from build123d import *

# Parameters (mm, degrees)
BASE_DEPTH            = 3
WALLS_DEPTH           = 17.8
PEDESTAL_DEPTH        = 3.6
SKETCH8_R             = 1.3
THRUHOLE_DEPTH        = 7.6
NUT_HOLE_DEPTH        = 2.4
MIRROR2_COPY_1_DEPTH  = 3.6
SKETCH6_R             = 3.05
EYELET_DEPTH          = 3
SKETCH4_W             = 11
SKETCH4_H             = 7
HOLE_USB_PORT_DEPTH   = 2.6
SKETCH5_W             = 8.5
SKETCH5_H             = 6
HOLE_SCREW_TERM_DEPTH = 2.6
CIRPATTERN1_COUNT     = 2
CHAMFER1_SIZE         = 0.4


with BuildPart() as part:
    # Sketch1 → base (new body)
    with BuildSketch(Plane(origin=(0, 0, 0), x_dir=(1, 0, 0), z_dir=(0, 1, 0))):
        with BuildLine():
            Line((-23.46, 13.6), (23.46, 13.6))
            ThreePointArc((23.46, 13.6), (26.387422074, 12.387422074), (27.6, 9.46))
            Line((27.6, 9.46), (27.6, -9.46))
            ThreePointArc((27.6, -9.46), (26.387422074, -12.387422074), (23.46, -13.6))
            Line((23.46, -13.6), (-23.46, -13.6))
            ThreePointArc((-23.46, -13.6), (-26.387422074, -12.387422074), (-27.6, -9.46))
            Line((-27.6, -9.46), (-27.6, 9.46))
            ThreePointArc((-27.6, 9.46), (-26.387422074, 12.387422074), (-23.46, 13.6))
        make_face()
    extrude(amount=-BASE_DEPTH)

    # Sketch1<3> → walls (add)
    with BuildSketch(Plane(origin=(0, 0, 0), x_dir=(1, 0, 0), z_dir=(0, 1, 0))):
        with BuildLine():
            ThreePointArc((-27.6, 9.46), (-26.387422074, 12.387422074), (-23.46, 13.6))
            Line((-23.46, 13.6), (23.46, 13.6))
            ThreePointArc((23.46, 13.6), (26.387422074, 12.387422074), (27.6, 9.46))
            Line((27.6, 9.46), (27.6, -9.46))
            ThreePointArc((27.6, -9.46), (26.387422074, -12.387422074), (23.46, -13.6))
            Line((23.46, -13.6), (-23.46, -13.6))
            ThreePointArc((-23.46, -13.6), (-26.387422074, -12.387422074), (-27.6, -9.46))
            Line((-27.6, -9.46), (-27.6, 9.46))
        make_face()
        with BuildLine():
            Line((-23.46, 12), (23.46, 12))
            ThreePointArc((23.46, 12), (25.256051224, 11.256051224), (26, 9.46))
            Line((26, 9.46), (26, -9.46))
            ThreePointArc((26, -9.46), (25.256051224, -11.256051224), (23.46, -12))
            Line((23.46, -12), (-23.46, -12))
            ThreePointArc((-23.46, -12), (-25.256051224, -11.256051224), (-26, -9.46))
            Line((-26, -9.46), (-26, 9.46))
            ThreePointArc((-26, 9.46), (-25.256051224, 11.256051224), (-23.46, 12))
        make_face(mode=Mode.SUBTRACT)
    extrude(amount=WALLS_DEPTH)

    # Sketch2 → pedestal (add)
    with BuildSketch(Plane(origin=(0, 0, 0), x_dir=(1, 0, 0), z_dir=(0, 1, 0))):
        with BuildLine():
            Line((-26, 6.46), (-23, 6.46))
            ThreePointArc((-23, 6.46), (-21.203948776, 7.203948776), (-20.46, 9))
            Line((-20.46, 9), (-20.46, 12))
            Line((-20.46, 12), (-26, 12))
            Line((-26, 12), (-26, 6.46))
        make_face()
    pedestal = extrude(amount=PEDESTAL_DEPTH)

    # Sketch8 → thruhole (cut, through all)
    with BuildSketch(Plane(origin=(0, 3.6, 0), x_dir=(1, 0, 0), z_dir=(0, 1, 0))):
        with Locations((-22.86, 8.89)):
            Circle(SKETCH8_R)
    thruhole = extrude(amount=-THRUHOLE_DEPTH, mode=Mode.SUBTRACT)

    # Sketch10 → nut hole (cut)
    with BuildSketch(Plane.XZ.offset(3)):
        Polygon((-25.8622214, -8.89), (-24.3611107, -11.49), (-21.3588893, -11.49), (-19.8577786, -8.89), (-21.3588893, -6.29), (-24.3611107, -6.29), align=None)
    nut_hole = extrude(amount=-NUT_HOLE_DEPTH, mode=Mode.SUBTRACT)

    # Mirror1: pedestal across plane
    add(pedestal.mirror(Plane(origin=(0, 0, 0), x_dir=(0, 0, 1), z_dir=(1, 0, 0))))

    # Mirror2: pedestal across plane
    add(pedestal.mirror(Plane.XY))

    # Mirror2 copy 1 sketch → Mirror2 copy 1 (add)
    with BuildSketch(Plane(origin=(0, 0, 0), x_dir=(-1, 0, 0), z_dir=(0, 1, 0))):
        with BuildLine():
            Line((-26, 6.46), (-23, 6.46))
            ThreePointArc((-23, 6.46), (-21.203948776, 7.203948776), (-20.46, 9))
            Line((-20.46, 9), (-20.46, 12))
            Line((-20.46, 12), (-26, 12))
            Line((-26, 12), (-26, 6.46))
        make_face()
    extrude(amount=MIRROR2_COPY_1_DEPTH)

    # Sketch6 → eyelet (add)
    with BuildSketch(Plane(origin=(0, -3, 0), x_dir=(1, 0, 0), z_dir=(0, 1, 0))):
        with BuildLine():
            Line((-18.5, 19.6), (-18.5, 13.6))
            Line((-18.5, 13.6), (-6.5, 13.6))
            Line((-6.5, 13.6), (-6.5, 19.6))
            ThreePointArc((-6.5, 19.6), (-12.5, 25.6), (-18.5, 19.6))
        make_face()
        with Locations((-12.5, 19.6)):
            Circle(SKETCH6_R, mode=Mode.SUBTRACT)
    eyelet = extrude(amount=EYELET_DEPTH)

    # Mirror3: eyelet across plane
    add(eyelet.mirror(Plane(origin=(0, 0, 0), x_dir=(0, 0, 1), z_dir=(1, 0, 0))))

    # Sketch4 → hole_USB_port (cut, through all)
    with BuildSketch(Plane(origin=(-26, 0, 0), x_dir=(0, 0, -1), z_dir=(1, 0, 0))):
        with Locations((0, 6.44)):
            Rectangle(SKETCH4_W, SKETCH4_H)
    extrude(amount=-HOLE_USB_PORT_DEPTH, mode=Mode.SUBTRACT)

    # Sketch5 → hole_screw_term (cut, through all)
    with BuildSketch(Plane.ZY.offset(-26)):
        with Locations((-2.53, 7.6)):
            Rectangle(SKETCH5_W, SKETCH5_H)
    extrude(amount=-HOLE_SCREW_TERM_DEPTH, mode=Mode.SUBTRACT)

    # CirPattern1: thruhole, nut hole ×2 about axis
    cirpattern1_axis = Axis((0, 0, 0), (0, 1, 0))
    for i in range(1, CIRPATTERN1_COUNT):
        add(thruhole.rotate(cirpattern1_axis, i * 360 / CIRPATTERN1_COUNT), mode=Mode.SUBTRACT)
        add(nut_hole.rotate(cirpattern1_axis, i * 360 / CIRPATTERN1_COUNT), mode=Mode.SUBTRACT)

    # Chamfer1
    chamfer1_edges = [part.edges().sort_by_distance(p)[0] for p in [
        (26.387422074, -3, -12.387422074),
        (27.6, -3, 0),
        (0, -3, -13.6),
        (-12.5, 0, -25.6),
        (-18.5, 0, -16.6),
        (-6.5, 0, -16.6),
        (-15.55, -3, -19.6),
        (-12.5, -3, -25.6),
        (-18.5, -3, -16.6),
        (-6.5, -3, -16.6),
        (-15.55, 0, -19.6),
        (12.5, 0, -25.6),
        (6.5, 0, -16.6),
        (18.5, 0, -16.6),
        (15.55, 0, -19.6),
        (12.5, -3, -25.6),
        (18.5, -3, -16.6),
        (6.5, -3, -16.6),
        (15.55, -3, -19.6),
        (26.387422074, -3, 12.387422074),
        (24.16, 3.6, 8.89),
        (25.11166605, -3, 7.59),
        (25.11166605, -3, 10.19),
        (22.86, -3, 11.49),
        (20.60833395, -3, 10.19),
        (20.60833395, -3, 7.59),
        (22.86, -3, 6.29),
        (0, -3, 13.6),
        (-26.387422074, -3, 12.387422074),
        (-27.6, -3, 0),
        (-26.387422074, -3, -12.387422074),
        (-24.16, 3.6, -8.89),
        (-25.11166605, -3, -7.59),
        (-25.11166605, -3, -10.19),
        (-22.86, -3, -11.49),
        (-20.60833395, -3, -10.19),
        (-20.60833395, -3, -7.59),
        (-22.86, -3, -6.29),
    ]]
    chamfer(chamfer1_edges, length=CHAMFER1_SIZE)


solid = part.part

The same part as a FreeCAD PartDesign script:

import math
import FreeCAD as App
import Part
import Sketcher
from FreeCAD import Vector
Q = App.Units.Quantity


def edges_at(feature, points):
    """Names of the edges that pass closest to the given points."""
    edges = feature.Shape.Edges
    near = lambda p: min(range(len(edges)), key=lambda i: edges[i].distToShape(Part.Vertex(*p))[0])
    return sorted({f"Edge{near(p) + 1}" for p in points})


def add_polygon(sketch, points):
    """Adds a closed chain of lines whose ends are joined by coincident constraints."""
    first, n = sketch.GeometryCount, len(points)
    for a, b in zip(points, points[1:] + points[:1]):
        sketch.addGeometry(Part.LineSegment(App.Vector(*a, 0), App.Vector(*b, 0)), False)
    for i in range(n):
        sketch.addConstraint(Sketcher.Constraint("Coincident", first + i, 2, first + (i + 1) % n, 1))

doc = App.newDocument("Part")
body = doc.addObject("PartDesign::Body", "Body")

# Sketch on XZ plane
sketch1 = body.newObject("Sketcher::SketchObject", "Sketch")
sketch1.AttachmentSupport = (doc.getObject("XZ_Plane"), [""])
sketch1.MapMode = "FlatFace"
sketch1.addGeometry([
    Part.LineSegment(Vector(23.5, -13.6, 0), Vector(-23.5, -13.6, 0)),  # 0
    Part.ArcOfCircle(Part.Circle(Vector(-23.5, -9.5, 0), Vector(0, 0, 1), 4.1), math.radians(180), math.radians(270)),  # 1
    Part.LineSegment(Vector(-27.6, -9.5, 0), Vector(-27.6, 9.5, 0)),  # 2
    Part.ArcOfCircle(Part.Circle(Vector(-23.5, 9.5, 0), Vector(0, 0, 1), 4.1), math.radians(90), math.radians(180)),  # 3
    Part.LineSegment(Vector(-23.5, 13.6, 0), Vector(23.5, 13.6, 0)),  # 4
    Part.ArcOfCircle(Part.Circle(Vector(23.5, 9.5, 0), Vector(0, 0, 1), 4.1), math.radians(0), math.radians(90)),  # 5
    Part.LineSegment(Vector(27.6, 9.5, 0), Vector(27.6, -9.5, 0)),  # 6
    Part.ArcOfCircle(Part.Circle(Vector(23.5, -9.5, 0), Vector(0, 0, 1), 4.1), math.radians(-90), math.radians(0)),  # 7
], False)
sketch1.addConstraint([
    Sketcher.Constraint("Tangent", 0, 2, 1, 2),
    Sketcher.Constraint("Tangent", 1, 1, 2, 1),
    Sketcher.Constraint("Tangent", 2, 2, 3, 2),
    Sketcher.Constraint("Tangent", 3, 1, 4, 1),
    Sketcher.Constraint("Tangent", 4, 2, 5, 2),
    Sketcher.Constraint("Tangent", 5, 1, 6, 1),
    Sketcher.Constraint("Tangent", 6, 2, 7, 2),
    Sketcher.Constraint("Tangent", 7, 1, 0, 1),
    Sketcher.Constraint("Horizontal", 0),
    Sketcher.Constraint("Vertical", 2),
    Sketcher.Constraint("Horizontal", 4),
    Sketcher.Constraint("Vertical", 6),
    Sketcher.Constraint("Equal", 1, 3),
    Sketcher.Constraint("Equal", 3, 5),
    Sketcher.Constraint("Equal", 5, 7),
    Sketcher.Constraint("Symmetric", 1, 3, 5, 3, -1, 1),
    Sketcher.Constraint("Radius", 1, 4.14),
    Sketcher.Constraint("DistanceX", 0, 2, 0, 1, 46.92),
    Sketcher.Constraint("DistanceY", 2, 1, 2, 2, 18.92),
])
pad1 = body.newObject("PartDesign::Pad", "Pad")
pad1.Profile = sketch1
pad1.Length = 3

# Sketch on XZ plane
sketch2 = body.newObject("Sketcher::SketchObject", "Sketch001")
sketch2.AttachmentSupport = (doc.getObject("XZ_Plane"), [""])
sketch2.MapMode = "FlatFace"
sketch2.addGeometry([
    Part.ArcOfCircle(Part.Circle(Vector(-23.5, -9.5, 0), Vector(0, 0, 1), 4.1), math.radians(180), math.radians(270)),  # 0
    Part.LineSegment(Vector(-27.6, -9.5, 0), Vector(-27.6, 9.5, 0)),  # 1
    Part.ArcOfCircle(Part.Circle(Vector(-23.5, 9.5, 0), Vector(0, 0, 1), 4.1), math.radians(90), math.radians(180)),  # 2
    Part.LineSegment(Vector(-23.5, 13.6, 0), Vector(23.5, 13.6, 0)),  # 3
    Part.ArcOfCircle(Part.Circle(Vector(23.5, 9.5, 0), Vector(0, 0, 1), 4.1), math.radians(0), math.radians(90)),  # 4
    Part.LineSegment(Vector(27.6, 9.5, 0), Vector(27.6, -9.5, 0)),  # 5
    Part.ArcOfCircle(Part.Circle(Vector(23.5, -9.5, 0), Vector(0, 0, 1), 4.1), math.radians(-90), math.radians(0)),  # 6
    Part.LineSegment(Vector(23.5, -13.6, 0), Vector(-23.5, -13.6, 0)),  # 7
    Part.LineSegment(Vector(-23.5, -12, 0), Vector(23.5, -12, 0)),  # 8
    Part.ArcOfCircle(Part.Circle(Vector(23.5, -9.5, 0), Vector(0, 0, 1), 2.5), math.radians(-90), math.radians(0)),  # 9
    Part.LineSegment(Vector(26, -9.5, 0), Vector(26, 9.5, 0)),  # 10
    Part.ArcOfCircle(Part.Circle(Vector(23.5, 9.5, 0), Vector(0, 0, 1), 2.5), math.radians(0), math.radians(90)),  # 11
    Part.LineSegment(Vector(23.5, 12, 0), Vector(-23.5, 12, 0)),  # 12
    Part.ArcOfCircle(Part.Circle(Vector(-23.5, 9.5, 0), Vector(0, 0, 1), 2.5), math.radians(90), math.radians(180)),  # 13
    Part.LineSegment(Vector(-26, 9.5, 0), Vector(-26, -9.5, 0)),  # 14
    Part.ArcOfCircle(Part.Circle(Vector(-23.5, -9.5, 0), Vector(0, 0, 1), 2.5), math.radians(-180), math.radians(-90)),  # 15
], False)
sketch2.addConstraint([
    Sketcher.Constraint("Tangent", 0, 1, 1, 1),
    Sketcher.Constraint("Tangent", 1, 2, 2, 2),
    Sketcher.Constraint("Tangent", 2, 1, 3, 1),
    Sketcher.Constraint("Tangent", 3, 2, 4, 2),
    Sketcher.Constraint("Tangent", 4, 1, 5, 1),
    Sketcher.Constraint("Tangent", 5, 2, 6, 2),
    Sketcher.Constraint("Tangent", 6, 1, 7, 1),
    Sketcher.Constraint("Tangent", 7, 2, 0, 2),
    Sketcher.Constraint("Tangent", 8, 2, 9, 1),
    Sketcher.Constraint("Tangent", 9, 2, 10, 1),
    Sketcher.Constraint("Tangent", 10, 2, 11, 1),
    Sketcher.Constraint("Tangent", 11, 2, 12, 1),
    Sketcher.Constraint("Tangent", 12, 2, 13, 1),
    Sketcher.Constraint("Tangent", 13, 2, 14, 1),
    Sketcher.Constraint("Tangent", 14, 2, 15, 1),
    Sketcher.Constraint("Tangent", 15, 2, 8, 1),
    Sketcher.Constraint("Vertical", 1),
    Sketcher.Constraint("Horizontal", 3),
    Sketcher.Constraint("Vertical", 5),
    Sketcher.Constraint("Horizontal", 7),
    Sketcher.Constraint("Horizontal", 8),
    Sketcher.Constraint("Vertical", 10),
    Sketcher.Constraint("Horizontal", 12),
    Sketcher.Constraint("Vertical", 14),
    Sketcher.Constraint("Coincident", 9, 3, 6, 3),
    Sketcher.Constraint("Coincident", 11, 3, 4, 3),
    Sketcher.Constraint("Coincident", 13, 3, 2, 3),
    Sketcher.Constraint("Equal", 0, 2),
    Sketcher.Constraint("Equal", 2, 4),
    Sketcher.Constraint("Equal", 4, 6),
    Sketcher.Constraint("Equal", 13, 15),
    Sketcher.Constraint("Symmetric", 0, 3, 4, 3, -1, 1),
    Sketcher.Constraint("Radius", 0, 4.14),
    Sketcher.Constraint("Radius", 9, 2.54),
    Sketcher.Constraint("DistanceY", 8, 2, -1, 1, 12.0),
    Sketcher.Constraint("DistanceX", -1, 1, 9, 2, 26.0),
])
pad2 = body.newObject("PartDesign::Pad", "Pad001")
pad2.Profile = sketch2
pad2.Length = 17.8
pad2.Reversed = True

# Sketch on XZ plane
sketch3 = body.newObject("Sketcher::SketchObject", "Sketch002")
sketch3.AttachmentSupport = (doc.getObject("XZ_Plane"), [""])
sketch3.MapMode = "FlatFace"
sketch3.addGeometry([
    Part.LineSegment(Vector(-26, -6.5, 0), Vector(-23, -6.5, 0)),  # 0
    Part.ArcOfCircle(Part.Circle(Vector(-23, -9, 0), Vector(0, 0, 1), 2.5), math.radians(0), math.radians(90)),  # 1
    Part.LineSegment(Vector(-20.5, -9, 0), Vector(-20.5, -12, 0)),  # 2
    Part.LineSegment(Vector(-20.5, -12, 0), Vector(-26, -12, 0)),  # 3
    Part.LineSegment(Vector(-26, -12, 0), Vector(-26, -6.5, 0)),  # 4
], False)
sketch3.addConstraint([
    Sketcher.Constraint("Tangent", 0, 2, 1, 2),
    Sketcher.Constraint("Tangent", 1, 1, 2, 1),
    Sketcher.Constraint("Coincident", 2, 2, 3, 1),
    Sketcher.Constraint("Coincident", 3, 2, 4, 1),
    Sketcher.Constraint("Coincident", 4, 2, 0, 1),
    Sketcher.Constraint("Horizontal", 0),
    Sketcher.Constraint("Vertical", 2),
    Sketcher.Constraint("Horizontal", 3),
    Sketcher.Constraint("Vertical", 4),
    Sketcher.Constraint("Equal", 0, 2),
    Sketcher.Constraint("DistanceX", 0, 1, 0, 2, 3.0),
    Sketcher.Constraint("Radius", 1, 2.54),
    Sketcher.Constraint("DistanceX", 1, 3, -1, 1, 23.0),
    Sketcher.Constraint("DistanceY", 1, 3, -1, 1, 9.0),
])
pad3 = body.newObject("PartDesign::Pad", "Pad002")
pad3.Profile = sketch3
pad3.Length = 3.6
pad3.Reversed = True

# Sketch on XZ plane
sketch4 = body.newObject("Sketcher::SketchObject", "Sketch003")
sketch4.AttachmentSupport = (doc.getObject("XZ_Plane"), [""])
sketch4.MapMode = "FlatFace"
sketch4.AttachmentOffset = App.Placement(Vector(0, 0, -3.6), App.Rotation())
sketch4.addGeometry(Part.Circle(Vector(-22.9, -8.9, 0), Vector(0, 0, 1), 1.3), False)
sketch4.addConstraint([
    Sketcher.Constraint("Diameter", 0, 2.6),
    Sketcher.Constraint("DistanceX", 0, 3, -1, 1, 22.86),
    Sketcher.Constraint("DistanceY", 0, 3, -1, 1, 8.89),
])
pocket1 = body.newObject("PartDesign::Pocket", "Pocket")
pocket1.Profile = sketch4
pocket1.Type = "ThroughAll"
pocket1.Reversed = True

# Sketch on XZ plane
sketch5 = body.newObject("Sketcher::SketchObject", "Sketch004")
sketch5.AttachmentSupport = (doc.getObject("XZ_Plane"), [""])
sketch5.MapMode = "FlatFace"
sketch5.AttachmentOffset = App.Placement(Vector(0, 0, 3), App.Rotation())
add_polygon(sketch5, [(-25.9, -8.9), (-24.4, -11.5), (-21.4, -11.5), (-19.9, -8.9), (-21.4, -6.3), (-24.4, -6.3)])  # lines 0-5
sketch5.addConstraint([
    Sketcher.Constraint("Horizontal", 1),
    Sketcher.Constraint("Horizontal", 4),
    Sketcher.Constraint("Parallel", 0, 3),
    Sketcher.Constraint("Parallel", 2, 5),
    Sketcher.Constraint("Horizontal", 2, 2, 5, 2),
    Sketcher.Constraint("Vertical", 1, 2, 3, 2),
    Sketcher.Constraint("Vertical", 0, 2, 4, 2),
    Sketcher.Constraint("Angle", 0, Q("-60 deg")),
    Sketcher.Constraint("DistanceY", 1, 2, 2, 2, 2.6),
    Sketcher.Constraint("DistanceY", 0, 2, -1, 1, 11.49),
    Sketcher.Constraint("DistanceX", 1, 1, 1, 2, 3.002221),
    Sketcher.Constraint("DistanceX", 0, 2, -1, 1, 24.361111),
])
pocket2 = body.newObject("PartDesign::Pocket", "Pocket001")
pocket2.Profile = sketch5
pocket2.Length = 2.4
doc.recompute()

mirrored = body.newObject("PartDesign::Mirrored", "Mirrored")
mirrored.Originals = [pad3]
mirrored.MirrorPlane = (doc.getObject("YZ_Plane"), [""])
body.Tip = mirrored
doc.recompute()

mirrored2 = body.newObject("PartDesign::Mirrored", "Mirrored001")
mirrored2.Originals = [pad3]
mirrored2.MirrorPlane = (doc.getObject("XY_Plane"), [""])
body.Tip = mirrored2

# Sketch on XZ plane
sketch6 = body.newObject("Sketcher::SketchObject", "Sketch005")
sketch6.AttachmentSupport = (doc.getObject("XZ_Plane"), [""])
sketch6.MapMode = "FlatFace"
sketch6.addGeometry([
    Part.LineSegment(Vector(26, 6.5, 0), Vector(23, 6.5, 0)),  # 0
    Part.ArcOfCircle(Part.Circle(Vector(23, 9, 0), Vector(0, 0, 1), 2.5), math.radians(-180), math.radians(-90)),  # 1
    Part.LineSegment(Vector(20.5, 9, 0), Vector(20.5, 12, 0)),  # 2
    Part.LineSegment(Vector(20.5, 12, 0), Vector(26, 12, 0)),  # 3
    Part.LineSegment(Vector(26, 12, 0), Vector(26, 6.5, 0)),  # 4
], False)
sketch6.addConstraint([
    Sketcher.Constraint("Tangent", 0, 2, 1, 2),
    Sketcher.Constraint("Tangent", 1, 1, 2, 1),
    Sketcher.Constraint("Coincident", 2, 2, 3, 1),
    Sketcher.Constraint("Coincident", 3, 2, 4, 1),
    Sketcher.Constraint("Coincident", 4, 2, 0, 1),
    Sketcher.Constraint("Horizontal", 0),
    Sketcher.Constraint("Vertical", 2),
    Sketcher.Constraint("Horizontal", 3),
    Sketcher.Constraint("Vertical", 4),
    Sketcher.Constraint("Equal", 0, 2),
    Sketcher.Constraint("DistanceX", 0, 2, 0, 1, 3.0),
    Sketcher.Constraint("Radius", 1, 2.54),
    Sketcher.Constraint("DistanceX", -1, 1, 1, 3, 23.0),
    Sketcher.Constraint("DistanceY", -1, 1, 1, 3, 9.0),
])
pad4 = body.newObject("PartDesign::Pad", "Pad003")
pad4.Profile = sketch6
pad4.Length = 3.6
pad4.Reversed = True

# Sketch on XZ plane
sketch7 = body.newObject("Sketcher::SketchObject", "Sketch006")
sketch7.AttachmentSupport = (doc.getObject("XZ_Plane"), [""])
sketch7.MapMode = "FlatFace"
sketch7.AttachmentOffset = App.Placement(Vector(0, 0, 3), App.Rotation())
sketch7.addGeometry([
    Part.LineSegment(Vector(-18.5, -19.6, 0), Vector(-18.5, -13.6, 0)),  # 0
    Part.LineSegment(Vector(-18.5, -13.6, 0), Vector(-6.5, -13.6, 0)),  # 1
    Part.LineSegment(Vector(-6.5, -13.6, 0), Vector(-6.5, -19.6, 0)),  # 2
    Part.ArcOfCircle(Part.Circle(Vector(-12.5, -19.6, 0), Vector(0, 0, 1), 6), math.radians(180), math.radians(360)),  # 3
    Part.Circle(Vector(-12.5, -19.6, 0), Vector(0, 0, 1), 3),  # 4
], False)
sketch7.addConstraint([
    Sketcher.Constraint("Coincident", 0, 2, 1, 1),
    Sketcher.Constraint("Coincident", 1, 2, 2, 1),
    Sketcher.Constraint("Tangent", 2, 2, 3, 2),
    Sketcher.Constraint("Tangent", 3, 1, 0, 1),
    Sketcher.Constraint("Vertical", 0),
    Sketcher.Constraint("Horizontal", 1),
    Sketcher.Constraint("Vertical", 2),
    Sketcher.Constraint("Coincident", 4, 3, 3, 3),
    Sketcher.Constraint("Radius", 3, 6.0),
    Sketcher.Constraint("Diameter", 4, 6.1),
    Sketcher.Constraint("DistanceY", 0, 1, 0, 2, 6.0),
    Sketcher.Constraint("DistanceX", 3, 3, -1, 1, 12.5),
    Sketcher.Constraint("DistanceY", 3, 3, -1, 1, 19.6),
])
pad5 = body.newObject("PartDesign::Pad", "Pad004")
pad5.Profile = sketch7
pad5.Length = 3
pad5.Reversed = True
doc.recompute()

mirrored3 = body.newObject("PartDesign::Mirrored", "Mirrored002")
mirrored3.Originals = [pad5]
mirrored3.MirrorPlane = (doc.getObject("YZ_Plane"), [""])
body.Tip = mirrored3

# Sketch on YZ plane
sketch8 = body.newObject("Sketcher::SketchObject", "Sketch007")
sketch8.AttachmentSupport = (doc.getObject("YZ_Plane"), [""])
sketch8.MapMode = "FlatFace"
sketch8.AttachmentOffset = App.Placement(Vector(0, 0, -26), App.Rotation())
add_polygon(sketch8, [(10, 6), (3, 6), (3, -6), (10, -6)])  # lines 0-3
sketch8.addConstraint([
    Sketcher.Constraint("Horizontal", 0),
    Sketcher.Constraint("Vertical", 1),
    Sketcher.Constraint("Horizontal", 2),
    Sketcher.Constraint("Vertical", 3),
    Sketcher.Constraint("DistanceX", 0, 2, 0, 1, 7.0),
    Sketcher.Constraint("DistanceY", 1, 2, 1, 1, 11.0),
    Sketcher.Constraint("DistanceY", -1, 1, 0, 2, 5.5),
    Sketcher.Constraint("DistanceX", -1, 1, 0, 2, 2.94),
])
pocket3 = body.newObject("PartDesign::Pocket", "Pocket002")
pocket3.Profile = sketch8
pocket3.Type = "ThroughAll"

# Sketch on YZ plane
sketch9 = body.newObject("Sketcher::SketchObject", "Sketch008")
sketch9.AttachmentSupport = (doc.getObject("YZ_Plane"), [""])
sketch9.MapMode = "FlatFace"
sketch9.AttachmentOffset = App.Placement(Vector(0, 0, 26), App.Rotation())
add_polygon(sketch9, [(11, -7), (5, -7), (5, 2), (11, 2)])  # lines 0-3
sketch9.addConstraint([
    Sketcher.Constraint("Horizontal", 0),
    Sketcher.Constraint("Vertical", 1),
    Sketcher.Constraint("Horizontal", 2),
    Sketcher.Constraint("Vertical", 3),
    Sketcher.Constraint("DistanceX", 0, 2, 0, 1, 6.0),
    Sketcher.Constraint("DistanceY", 1, 1, 1, 2, 8.5),
    Sketcher.Constraint("DistanceX", -1, 1, 0, 2, 4.6),
    Sketcher.Constraint("DistanceY", 0, 2, -1, 1, 6.78),
])
pocket4 = body.newObject("PartDesign::Pocket", "Pocket003")
pocket4.Profile = sketch9
pocket4.Type = "ThroughAll"
pocket4.Reversed = True
doc.recompute()

polarpattern = body.newObject("PartDesign::PolarPattern", "PolarPattern")
polarpattern.Originals = [pocket1, pocket2]
polarpattern.Axis = (doc.getObject("Y_Axis"), [""])
polarpattern.Angle = 360
polarpattern.Occurrences = 2
body.Tip = polarpattern
doc.recompute()

chamfer = body.newObject("PartDesign::Chamfer", "Chamfer")
chamfer.Base = (polarpattern, edges_at(polarpattern, [
    (26.387, -3, -12.387),
    (27.6, -3, 0),
    (0, -3, -13.6),
    (-12.5, 0, -25.6),
    (-18.5, 0, -16.6),
    (-6.5, 0, -16.6),
    (-15.55, -3, -19.6),
    (-12.5, -3, -25.6),
    (-18.5, -3, -16.6),
    (-6.5, -3, -16.6),
    (-15.55, 0, -19.6),
    (12.5, 0, -25.6),
    (6.5, 0, -16.6),
    (18.5, 0, -16.6),
    (15.55, 0, -19.6),
    (12.5, -3, -25.6),
    (18.5, -3, -16.6),
    (6.5, -3, -16.6),
    (15.55, -3, -19.6),
    (26.387, -3, 12.387),
    (24.16, 3.6, 8.89),
    (25.112, -3, 7.59),
    (25.112, -3, 10.19),
    (22.86, -3, 11.49),
    (20.608, -3, 10.19),
    (20.608, -3, 7.59),
    (22.86, -3, 6.29),
    (0, -3, 13.6),
    (-26.387, -3, 12.387),
    (-27.6, -3, 0),
    (-26.387, -3, -12.387),
    (-24.16, 3.6, -8.89),
    (-25.112, -3, -7.59),
    (-25.112, -3, -10.19),
    (-22.86, -3, -11.49),
    (-20.608, -3, -10.19),
    (-20.608, -3, -7.59),
    (-22.86, -3, -6.29),
]))
chamfer.Size = 0.4

doc.recompute()
